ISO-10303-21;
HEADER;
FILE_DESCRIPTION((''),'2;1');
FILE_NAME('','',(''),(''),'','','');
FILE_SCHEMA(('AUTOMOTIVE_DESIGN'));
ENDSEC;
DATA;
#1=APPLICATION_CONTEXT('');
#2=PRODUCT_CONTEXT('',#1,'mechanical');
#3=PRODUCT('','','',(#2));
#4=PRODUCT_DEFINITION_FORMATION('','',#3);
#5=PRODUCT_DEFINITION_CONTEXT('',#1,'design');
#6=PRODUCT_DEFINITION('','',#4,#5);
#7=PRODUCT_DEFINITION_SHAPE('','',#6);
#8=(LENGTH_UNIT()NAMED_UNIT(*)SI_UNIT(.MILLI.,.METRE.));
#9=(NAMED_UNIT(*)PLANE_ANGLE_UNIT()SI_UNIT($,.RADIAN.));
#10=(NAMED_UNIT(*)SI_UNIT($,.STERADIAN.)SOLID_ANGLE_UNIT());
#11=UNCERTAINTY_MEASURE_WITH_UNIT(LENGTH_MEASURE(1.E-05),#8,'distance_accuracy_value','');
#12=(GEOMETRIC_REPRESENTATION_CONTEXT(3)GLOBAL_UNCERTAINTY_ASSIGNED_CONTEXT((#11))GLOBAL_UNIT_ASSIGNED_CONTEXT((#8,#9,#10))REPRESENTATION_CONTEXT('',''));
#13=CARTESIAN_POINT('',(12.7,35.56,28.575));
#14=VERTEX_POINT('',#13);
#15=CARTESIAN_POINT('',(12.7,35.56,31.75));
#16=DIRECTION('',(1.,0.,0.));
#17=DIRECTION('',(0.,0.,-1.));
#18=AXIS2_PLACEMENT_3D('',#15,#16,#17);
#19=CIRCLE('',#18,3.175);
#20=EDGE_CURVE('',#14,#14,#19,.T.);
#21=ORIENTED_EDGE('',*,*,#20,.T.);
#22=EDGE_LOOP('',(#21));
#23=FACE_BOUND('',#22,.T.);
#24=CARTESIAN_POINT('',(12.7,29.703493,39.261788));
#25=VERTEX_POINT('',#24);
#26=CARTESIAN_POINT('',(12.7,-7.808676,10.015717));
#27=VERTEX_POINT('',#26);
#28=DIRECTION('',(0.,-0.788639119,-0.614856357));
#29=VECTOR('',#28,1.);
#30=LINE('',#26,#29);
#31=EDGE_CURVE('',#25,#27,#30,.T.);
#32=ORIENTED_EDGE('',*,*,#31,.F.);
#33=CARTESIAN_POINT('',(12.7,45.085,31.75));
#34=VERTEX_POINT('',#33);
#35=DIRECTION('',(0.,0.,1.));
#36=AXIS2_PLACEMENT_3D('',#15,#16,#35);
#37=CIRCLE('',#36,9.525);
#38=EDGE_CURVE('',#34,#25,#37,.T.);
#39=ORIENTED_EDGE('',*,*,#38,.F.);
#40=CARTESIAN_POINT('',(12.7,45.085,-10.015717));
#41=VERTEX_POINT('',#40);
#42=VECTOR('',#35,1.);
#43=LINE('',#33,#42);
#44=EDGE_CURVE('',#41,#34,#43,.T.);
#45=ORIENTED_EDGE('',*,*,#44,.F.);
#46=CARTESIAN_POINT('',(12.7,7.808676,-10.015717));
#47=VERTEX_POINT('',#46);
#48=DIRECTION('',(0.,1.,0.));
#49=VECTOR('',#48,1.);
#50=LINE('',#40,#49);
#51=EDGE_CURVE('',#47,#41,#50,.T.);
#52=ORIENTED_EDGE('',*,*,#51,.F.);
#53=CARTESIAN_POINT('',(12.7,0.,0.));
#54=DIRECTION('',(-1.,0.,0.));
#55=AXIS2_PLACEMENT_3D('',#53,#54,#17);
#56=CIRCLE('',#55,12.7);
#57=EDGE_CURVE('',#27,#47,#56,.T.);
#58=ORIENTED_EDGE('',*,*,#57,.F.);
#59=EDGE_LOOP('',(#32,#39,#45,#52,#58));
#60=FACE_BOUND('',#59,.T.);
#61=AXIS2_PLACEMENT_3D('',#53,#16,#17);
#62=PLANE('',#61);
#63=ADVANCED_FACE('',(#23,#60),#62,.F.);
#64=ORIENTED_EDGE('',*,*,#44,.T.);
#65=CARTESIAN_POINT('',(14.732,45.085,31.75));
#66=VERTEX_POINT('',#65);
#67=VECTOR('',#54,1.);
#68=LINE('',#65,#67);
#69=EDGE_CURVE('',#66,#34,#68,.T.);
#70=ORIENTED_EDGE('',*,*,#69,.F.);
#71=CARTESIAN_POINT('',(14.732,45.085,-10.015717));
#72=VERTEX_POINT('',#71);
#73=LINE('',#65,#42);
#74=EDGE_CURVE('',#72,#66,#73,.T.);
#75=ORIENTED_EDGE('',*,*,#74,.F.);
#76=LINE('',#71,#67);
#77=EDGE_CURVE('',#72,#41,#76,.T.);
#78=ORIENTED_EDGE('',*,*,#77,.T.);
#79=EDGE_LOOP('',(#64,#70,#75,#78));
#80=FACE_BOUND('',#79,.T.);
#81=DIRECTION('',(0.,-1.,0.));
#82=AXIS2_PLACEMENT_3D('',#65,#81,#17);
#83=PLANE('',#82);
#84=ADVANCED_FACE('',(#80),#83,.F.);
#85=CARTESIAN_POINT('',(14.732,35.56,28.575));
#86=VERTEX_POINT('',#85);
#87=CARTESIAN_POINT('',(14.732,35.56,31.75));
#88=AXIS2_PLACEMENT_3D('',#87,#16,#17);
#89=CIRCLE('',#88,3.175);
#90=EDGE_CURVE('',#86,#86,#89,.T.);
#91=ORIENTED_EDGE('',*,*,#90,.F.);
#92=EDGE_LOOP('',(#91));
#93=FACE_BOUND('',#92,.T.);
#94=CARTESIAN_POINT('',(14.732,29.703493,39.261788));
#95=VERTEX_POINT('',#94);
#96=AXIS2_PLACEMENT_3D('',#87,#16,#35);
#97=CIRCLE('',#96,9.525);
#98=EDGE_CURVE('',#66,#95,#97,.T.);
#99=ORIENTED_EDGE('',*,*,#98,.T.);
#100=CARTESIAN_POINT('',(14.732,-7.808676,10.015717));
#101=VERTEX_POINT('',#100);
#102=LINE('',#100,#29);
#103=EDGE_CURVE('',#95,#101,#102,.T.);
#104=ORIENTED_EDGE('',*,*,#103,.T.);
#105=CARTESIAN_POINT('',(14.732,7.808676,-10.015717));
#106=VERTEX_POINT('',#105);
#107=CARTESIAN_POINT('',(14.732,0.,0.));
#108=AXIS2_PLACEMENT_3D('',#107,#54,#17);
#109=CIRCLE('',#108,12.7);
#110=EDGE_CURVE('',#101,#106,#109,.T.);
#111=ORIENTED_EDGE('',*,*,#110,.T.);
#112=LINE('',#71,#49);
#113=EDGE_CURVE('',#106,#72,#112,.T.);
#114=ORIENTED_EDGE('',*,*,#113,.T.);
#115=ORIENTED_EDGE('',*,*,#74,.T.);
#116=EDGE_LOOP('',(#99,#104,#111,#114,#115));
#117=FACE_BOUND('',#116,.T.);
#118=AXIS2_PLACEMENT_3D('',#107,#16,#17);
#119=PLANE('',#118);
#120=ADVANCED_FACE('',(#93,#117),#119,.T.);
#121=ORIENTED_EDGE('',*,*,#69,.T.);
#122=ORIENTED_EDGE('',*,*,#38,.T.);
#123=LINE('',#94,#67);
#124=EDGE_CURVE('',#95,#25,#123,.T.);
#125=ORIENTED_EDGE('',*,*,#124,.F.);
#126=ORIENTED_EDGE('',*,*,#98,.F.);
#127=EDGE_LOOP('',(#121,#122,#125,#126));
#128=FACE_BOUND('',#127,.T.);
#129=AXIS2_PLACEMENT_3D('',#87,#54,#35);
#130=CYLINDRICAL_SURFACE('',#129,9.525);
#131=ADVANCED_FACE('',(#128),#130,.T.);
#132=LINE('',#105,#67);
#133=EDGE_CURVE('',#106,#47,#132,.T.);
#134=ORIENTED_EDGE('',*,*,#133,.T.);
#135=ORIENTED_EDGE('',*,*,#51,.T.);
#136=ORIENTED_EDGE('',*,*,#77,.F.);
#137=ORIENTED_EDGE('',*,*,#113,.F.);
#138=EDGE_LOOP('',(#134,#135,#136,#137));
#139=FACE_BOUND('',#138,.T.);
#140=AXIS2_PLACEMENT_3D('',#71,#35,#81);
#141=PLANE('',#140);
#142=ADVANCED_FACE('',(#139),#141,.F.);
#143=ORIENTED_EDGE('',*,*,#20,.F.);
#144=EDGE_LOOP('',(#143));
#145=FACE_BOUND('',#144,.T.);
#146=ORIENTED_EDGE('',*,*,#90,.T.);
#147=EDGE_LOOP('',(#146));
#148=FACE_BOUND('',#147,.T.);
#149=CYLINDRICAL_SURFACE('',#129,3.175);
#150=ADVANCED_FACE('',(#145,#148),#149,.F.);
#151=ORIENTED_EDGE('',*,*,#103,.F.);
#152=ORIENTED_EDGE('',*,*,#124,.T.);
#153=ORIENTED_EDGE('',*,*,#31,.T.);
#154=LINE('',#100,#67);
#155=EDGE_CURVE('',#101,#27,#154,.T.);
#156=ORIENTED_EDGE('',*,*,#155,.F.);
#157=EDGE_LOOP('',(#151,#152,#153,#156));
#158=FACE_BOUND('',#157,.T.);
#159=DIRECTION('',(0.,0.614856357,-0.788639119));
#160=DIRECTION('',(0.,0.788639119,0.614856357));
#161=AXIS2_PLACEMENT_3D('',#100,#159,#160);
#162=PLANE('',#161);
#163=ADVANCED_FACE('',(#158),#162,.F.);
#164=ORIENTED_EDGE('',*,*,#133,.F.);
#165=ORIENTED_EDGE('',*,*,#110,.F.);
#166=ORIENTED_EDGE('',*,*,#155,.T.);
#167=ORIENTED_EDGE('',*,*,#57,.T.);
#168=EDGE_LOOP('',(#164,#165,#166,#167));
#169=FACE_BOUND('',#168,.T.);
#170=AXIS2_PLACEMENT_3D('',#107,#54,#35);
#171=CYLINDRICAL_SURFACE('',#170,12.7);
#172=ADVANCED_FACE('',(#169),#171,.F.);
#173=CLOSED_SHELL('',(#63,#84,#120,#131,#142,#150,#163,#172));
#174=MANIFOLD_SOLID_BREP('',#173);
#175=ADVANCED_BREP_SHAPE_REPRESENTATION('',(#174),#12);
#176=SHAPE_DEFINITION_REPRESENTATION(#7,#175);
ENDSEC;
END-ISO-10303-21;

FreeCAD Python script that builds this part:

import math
import FreeCAD as App
import Part
import Sketcher
Q = App.Units.Quantity

doc = App.newDocument("Part")
body = doc.addObject("PartDesign::Body", "Body")

# Sketch on YZ plane
sketch1 = body.newObject("Sketcher::SketchObject", "Sketch")
sketch1.AttachmentSupport = (doc.getObject("YZ_Plane"), [""])
sketch1.MapMode = "FlatFace"
sketch1.AttachmentOffset = App.Placement(App.Vector(0, 0, 0.5 * 25.4), App.Rotation())
sketch1.addGeometry(Part.LineSegment(App.Vector(29.7, 39.3, 0), App.Vector(-7.8, 10, 0)), False)
sketch1.addGeometry(Part.ArcOfCircle(Part.Circle(App.Vector(0, 0, 0), App.Vector(0, 0, 1), 12.7), math.radians(-52), math.radians(128)), False)
sketch1.addGeometry(Part.LineSegment(App.Vector(7.8, -10, 0), App.Vector(45.1, -10, 0)), False)
sketch1.addGeometry(Part.LineSegment(App.Vector(45.1, -10, 0), App.Vector(45.1, 31.8, 0)), False)
sketch1.addGeometry(Part.ArcOfCircle(Part.Circle(App.Vector(35.6, 31.8, 0), App.Vector(0, 0, 1), 9.5), math.radians(0), math.radians(128)), False)
sketch1.addGeometry(Part.Circle(App.Vector(35.6, 31.8, 0), App.Vector(0, 0, 1), 3.2), False)
sketch1.addConstraint(Sketcher.Constraint("Tangent", 0, 2, 1, 2))
sketch1.addConstraint(Sketcher.Constraint("Coincident", 1, 1, 2, 1))
sketch1.addConstraint(Sketcher.Constraint("Coincident", 2, 2, 3, 1))
sketch1.addConstraint(Sketcher.Constraint("Tangent", 3, 2, 4, 1))
sketch1.addConstraint(Sketcher.Constraint("Tangent", 4, 2, 0, 1))
sketch1.addConstraint(Sketcher.Constraint("Horizontal", 2))
sketch1.addConstraint(Sketcher.Constraint("Vertical", 3))
sketch1.addConstraint(Sketcher.Constraint("Coincident", 1, 3, -1, 1))
sketch1.addConstraint(Sketcher.Constraint("Coincident", 5, 3, 4, 3))
sketch1.addConstraint(Sketcher.Constraint("Radius", 1, Q("0.5 in")))
sketch1.addConstraint(Sketcher.Constraint("Diameter", 5, Q("0.25 in")))
sketch1.addConstraint(Sketcher.Constraint("Radius", 4, Q("0.375 in")))
sketch1.addConstraint(Sketcher.Constraint("DistanceX", -1, 1, 4, 3, Q("1.4 in")))
sketch1.addConstraint(Sketcher.Constraint("DistanceY", -1, 1, 4, 3, Q("1.25 in")))
sketch1.addConstraint(Sketcher.Constraint("DistanceX", 2, 1, 2, 2, Q("37.276324 mm")))
pad1 = body.newObject("PartDesign::Pad", "Pad")
pad1.Profile = sketch1
pad1.Length = Q("0.08 in")

doc.recompute()
